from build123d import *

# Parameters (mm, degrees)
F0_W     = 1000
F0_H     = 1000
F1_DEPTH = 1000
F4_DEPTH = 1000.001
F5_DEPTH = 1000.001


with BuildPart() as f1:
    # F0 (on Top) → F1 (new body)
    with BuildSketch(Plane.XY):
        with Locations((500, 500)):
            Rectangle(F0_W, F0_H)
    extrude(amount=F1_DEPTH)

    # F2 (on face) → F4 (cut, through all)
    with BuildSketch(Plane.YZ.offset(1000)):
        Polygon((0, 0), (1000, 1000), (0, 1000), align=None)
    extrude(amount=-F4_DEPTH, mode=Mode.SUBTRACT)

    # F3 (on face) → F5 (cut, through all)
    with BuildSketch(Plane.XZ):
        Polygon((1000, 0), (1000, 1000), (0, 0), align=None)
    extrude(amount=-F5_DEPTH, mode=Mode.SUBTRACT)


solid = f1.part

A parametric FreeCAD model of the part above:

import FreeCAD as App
import Part
import Sketcher
Q = App.Units.Quantity


def add_polygon(sketch, points):
    """Adds a closed chain of lines whose ends are joined by coincident constraints."""
    first, n = sketch.GeometryCount, len(points)
    for a, b in zip(points, points[1:] + points[:1]):
        sketch.addGeometry(Part.LineSegment(App.Vector(*a, 0), App.Vector(*b, 0)), False)
    for i in range(n):
        sketch.addConstraint(Sketcher.Constraint("Coincident", first + i, 2, first + (i + 1) % n, 1))

doc = App.newDocument("Part")
body = doc.addObject("PartDesign::Body", "Body")

# Sketch on XY plane
sketch1 = doc.addObject("Sketcher::SketchObject", "Sketch")
body.addObject(sketch1)
sketch1.AttachmentSupport = (doc.XY_Plane, [""])
sketch1.MapMode = "FlatFace"
add_polygon(sketch1, [(0, 1000), (0, 0), (1000, 0), (1000, 1000)])  # lines 0-3
sketch1.addConstraint([
    Sketcher.Constraint("Vertical", 0),
    Sketcher.Constraint("Horizontal", 1),
    Sketcher.Constraint("Vertical", 2),
    Sketcher.Constraint("Horizontal", 3),
    Sketcher.Constraint("Coincident", 0, 2, -1, 1),
    Sketcher.Constraint("Equal", 3, 0),
    Sketcher.Constraint("DistanceX", 1, 1, 1, 2, Q("1000 mm")),
])
pad1 = doc.addObject("PartDesign::Pad", "Pad")
body.addObject(pad1)
pad1.Profile = sketch1
pad1.Length = 1000

# Sketch on YZ plane
sketch2 = doc.addObject("Sketcher::SketchObject", "Sketch001")
body.addObject(sketch2)
sketch2.AttachmentSupport = (doc.YZ_Plane, [""])
sketch2.MapMode = "FlatFace"
sketch2.AttachmentOffset = App.Placement(App.Vector(0, 0, 1000), App.Rotation())
add_polygon(sketch2, [(0, 0), (1000, 1000), (0, 1000)])  # lines 0-2
sketch2.addConstraint([
    Sketcher.Constraint("Horizontal", 1),
    Sketcher.Constraint("Vertical", 2),
    Sketcher.Constraint("Coincident", 2, 2, -1, 1),
    Sketcher.Constraint("Equal", 1, 2),
    Sketcher.Constraint("DistanceX", 1, 2, 1, 1, Q("1000 mm")),
])
pocket1 = doc.addObject("PartDesign::Pocket", "Pocket")
body.addObject(pocket1)
pocket1.Profile = sketch2
pocket1.Type = "ThroughAll"

# Sketch on XZ plane
sketch3 = doc.addObject("Sketcher::SketchObject", "Sketch002")
body.addObject(sketch3)
sketch3.AttachmentSupport = (doc.XZ_Plane, [""])
sketch3.MapMode = "FlatFace"
add_polygon(sketch3, [(1000, 0), (1000, 1000), (0, 0)])  # lines 0-2
sketch3.addConstraint([
    Sketcher.Constraint("Vertical", 0),
    Sketcher.Constraint("Horizontal", 2),
    Sketcher.Constraint("Coincident", 1, 2, -1, 1),
    Sketcher.Constraint("Equal", 2, 0),
    Sketcher.Constraint("DistanceX", 2, 1, 2, 2, Q("1000 mm")),
])
pocket2 = doc.addObject("PartDesign::Pocket", "Pocket001")
body.addObject(pocket2)
pocket2.Profile = sketch3
pocket2.Type = "ThroughAll"

doc.recompute()
